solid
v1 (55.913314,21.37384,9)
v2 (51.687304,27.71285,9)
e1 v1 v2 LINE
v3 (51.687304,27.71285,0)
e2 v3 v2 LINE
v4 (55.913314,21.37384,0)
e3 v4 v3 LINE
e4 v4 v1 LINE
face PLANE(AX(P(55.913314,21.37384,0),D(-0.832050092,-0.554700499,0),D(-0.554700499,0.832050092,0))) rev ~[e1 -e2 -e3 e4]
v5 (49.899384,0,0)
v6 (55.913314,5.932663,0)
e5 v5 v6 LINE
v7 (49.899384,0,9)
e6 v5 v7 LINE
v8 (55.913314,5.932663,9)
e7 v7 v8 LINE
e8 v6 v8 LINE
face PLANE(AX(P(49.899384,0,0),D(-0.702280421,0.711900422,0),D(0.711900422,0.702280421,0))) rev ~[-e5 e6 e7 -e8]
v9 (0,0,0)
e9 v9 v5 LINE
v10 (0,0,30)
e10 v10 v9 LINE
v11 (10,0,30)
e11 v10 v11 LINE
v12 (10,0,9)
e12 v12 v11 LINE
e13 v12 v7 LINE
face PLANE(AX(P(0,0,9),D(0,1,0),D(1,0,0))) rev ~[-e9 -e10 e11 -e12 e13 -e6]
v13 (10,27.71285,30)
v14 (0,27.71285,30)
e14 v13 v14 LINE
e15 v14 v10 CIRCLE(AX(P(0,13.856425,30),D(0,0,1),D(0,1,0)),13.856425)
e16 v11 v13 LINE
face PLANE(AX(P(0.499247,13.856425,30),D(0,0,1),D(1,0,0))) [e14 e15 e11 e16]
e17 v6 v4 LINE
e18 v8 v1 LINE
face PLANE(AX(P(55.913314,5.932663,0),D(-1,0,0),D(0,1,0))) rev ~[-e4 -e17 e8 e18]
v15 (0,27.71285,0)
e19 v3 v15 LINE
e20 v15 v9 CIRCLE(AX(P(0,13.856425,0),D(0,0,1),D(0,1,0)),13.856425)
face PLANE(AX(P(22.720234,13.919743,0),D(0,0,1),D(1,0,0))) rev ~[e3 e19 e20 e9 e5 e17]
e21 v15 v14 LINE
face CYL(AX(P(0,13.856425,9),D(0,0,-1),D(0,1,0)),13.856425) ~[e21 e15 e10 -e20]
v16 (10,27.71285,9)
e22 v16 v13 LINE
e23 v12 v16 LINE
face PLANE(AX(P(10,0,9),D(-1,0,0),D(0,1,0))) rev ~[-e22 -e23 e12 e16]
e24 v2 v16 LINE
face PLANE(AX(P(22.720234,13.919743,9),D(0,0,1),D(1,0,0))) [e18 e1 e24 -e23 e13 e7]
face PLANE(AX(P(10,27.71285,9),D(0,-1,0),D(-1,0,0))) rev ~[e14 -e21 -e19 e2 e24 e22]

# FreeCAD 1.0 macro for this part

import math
import FreeCAD as App
import Part
import Sketcher
from FreeCAD import Vector

doc = App.newDocument("Part")
body = doc.addObject("PartDesign::Body", "Body")

sketch1 = body.newObject("Sketcher::SketchObject", "Sketch")
sketch1.AttachmentSupport = (doc.getObject("XY_Plane"), [""])
sketch1.MapMode = "FlatFace"
sketch1.addGeometry(Part.ArcOfCircle(Part.Circle(Vector(0, 14, 0), Vector(0, 0, 1), 14), math.radians(90), math.radians(270)), False)
sketch1.addGeometry(Part.LineSegment(Vector(0, 0, 0), Vector(50, 0, 0)), False)
sketch1.addGeometry(Part.LineSegment(Vector(50, 0, 0), Vector(56, 6, 0)), False)
sketch1.addGeometry(Part.LineSegment(Vector(56, 6, 0), Vector(56, 21, 0)), False)
sketch1.addGeometry(Part.LineSegment(Vector(56, 21, 0), Vector(52, 28, 0)), False)
sketch1.addGeometry(Part.LineSegment(Vector(52, 28, 0), Vector(0, 28, 0)), False)
sketch1.addConstraint(Sketcher.Constraint("Tangent", 0, 2, 1, 1))
sketch1.addConstraint(Sketcher.Constraint("Coincident", 1, 2, 2, 1))
sketch1.addConstraint(Sketcher.Constraint("Coincident", 2, 2, 3, 1))
sketch1.addConstraint(Sketcher.Constraint("Coincident", 3, 2, 4, 1))
sketch1.addConstraint(Sketcher.Constraint("Coincident", 4, 2, 5, 1))
sketch1.addConstraint(Sketcher.Constraint("Tangent", 5, 2, 0, 1))
sketch1.addConstraint(Sketcher.Constraint("Horizontal", 1))
sketch1.addConstraint(Sketcher.Constraint("Vertical", 3))
sketch1.addConstraint(Sketcher.Constraint("Horizontal", 5))
sketch1.addConstraint(Sketcher.Constraint("Coincident", 0, 2, -1, 1))
sketch1.addConstraint(Sketcher.Constraint("Radius", 0, 13.856425))
sketch1.addConstraint(Sketcher.Constraint("DistanceX", 1, 1, 1, 2, 49.899384))
sketch1.addConstraint(Sketcher.Constraint("DistanceX", 5, 2, 5, 1, 51.687304))
sketch1.addConstraint(Sketcher.Constraint("DistanceY", 3, 1, 3, 2, 15.441177))
sketch1.addConstraint(Sketcher.Constraint("DistanceY", -1, 1, 3, 2, 21.37384))
sketch1.addConstraint(Sketcher.Constraint("DistanceX", 1, 2, 2, 2, 6.01393))
pad1 = body.newObject("PartDesign::Pad", "Pad")
pad1.Profile = sketch1
pad1.Length = 9

sketch2 = body.newObject("Sketcher::SketchObject", "Sketch001")
sketch2.AttachmentSupport = (doc.getObject("XY_Plane"), [""])
sketch2.MapMode = "FlatFace"
sketch2.AttachmentOffset = App.Placement(Vector(0, 0, 9), App.Rotation())
sketch2.addGeometry(Part.LineSegment(Vector(10, 0, 0), Vector(10, 28, 0)), False)
sketch2.addGeometry(Part.LineSegment(Vector(10, 28, 0), Vector(0, 28, 0)), False)
sketch2.addGeometry(Part.ArcOfCircle(Part.Circle(Vector(0, 14, 0), Vector(0, 0, 1), 14), math.radians(90), math.radians(270)), False)
sketch2.addGeometry(Part.LineSegment(Vector(0, 0, 0), Vector(10, 0, 0)), False)
sketch2.addConstraint(Sketcher.Constraint("Coincident", 0, 2, 1, 1))
sketch2.addConstraint(Sketcher.Constraint("Tangent", 1, 2, 2, 1))
sketch2.addConstraint(Sketcher.Constraint("Tangent", 2, 2, 3, 1))
sketch2.addConstraint(Sketcher.Constraint("Coincident", 3, 2, 0, 1))
sketch2.addConstraint(Sketcher.Constraint("Vertical", 0))
sketch2.addConstraint(Sketcher.Constraint("Horizontal", 1))
sketch2.addConstraint(Sketcher.Constraint("Horizontal", 3))
sketch2.addConstraint(Sketcher.Constraint("Coincident", 2, 2, -1, 1))
sketch2.addConstraint(Sketcher.Constraint("DistanceX", 1, 2, 1, 1, 10.0))
sketch2.addConstraint(Sketcher.Constraint("Radius", 2, 13.856425))
pad2 = body.newObject("PartDesign::Pad", "Pad001")
pad2.Profile = sketch2
pad2.Length = 21

doc.recompute()
